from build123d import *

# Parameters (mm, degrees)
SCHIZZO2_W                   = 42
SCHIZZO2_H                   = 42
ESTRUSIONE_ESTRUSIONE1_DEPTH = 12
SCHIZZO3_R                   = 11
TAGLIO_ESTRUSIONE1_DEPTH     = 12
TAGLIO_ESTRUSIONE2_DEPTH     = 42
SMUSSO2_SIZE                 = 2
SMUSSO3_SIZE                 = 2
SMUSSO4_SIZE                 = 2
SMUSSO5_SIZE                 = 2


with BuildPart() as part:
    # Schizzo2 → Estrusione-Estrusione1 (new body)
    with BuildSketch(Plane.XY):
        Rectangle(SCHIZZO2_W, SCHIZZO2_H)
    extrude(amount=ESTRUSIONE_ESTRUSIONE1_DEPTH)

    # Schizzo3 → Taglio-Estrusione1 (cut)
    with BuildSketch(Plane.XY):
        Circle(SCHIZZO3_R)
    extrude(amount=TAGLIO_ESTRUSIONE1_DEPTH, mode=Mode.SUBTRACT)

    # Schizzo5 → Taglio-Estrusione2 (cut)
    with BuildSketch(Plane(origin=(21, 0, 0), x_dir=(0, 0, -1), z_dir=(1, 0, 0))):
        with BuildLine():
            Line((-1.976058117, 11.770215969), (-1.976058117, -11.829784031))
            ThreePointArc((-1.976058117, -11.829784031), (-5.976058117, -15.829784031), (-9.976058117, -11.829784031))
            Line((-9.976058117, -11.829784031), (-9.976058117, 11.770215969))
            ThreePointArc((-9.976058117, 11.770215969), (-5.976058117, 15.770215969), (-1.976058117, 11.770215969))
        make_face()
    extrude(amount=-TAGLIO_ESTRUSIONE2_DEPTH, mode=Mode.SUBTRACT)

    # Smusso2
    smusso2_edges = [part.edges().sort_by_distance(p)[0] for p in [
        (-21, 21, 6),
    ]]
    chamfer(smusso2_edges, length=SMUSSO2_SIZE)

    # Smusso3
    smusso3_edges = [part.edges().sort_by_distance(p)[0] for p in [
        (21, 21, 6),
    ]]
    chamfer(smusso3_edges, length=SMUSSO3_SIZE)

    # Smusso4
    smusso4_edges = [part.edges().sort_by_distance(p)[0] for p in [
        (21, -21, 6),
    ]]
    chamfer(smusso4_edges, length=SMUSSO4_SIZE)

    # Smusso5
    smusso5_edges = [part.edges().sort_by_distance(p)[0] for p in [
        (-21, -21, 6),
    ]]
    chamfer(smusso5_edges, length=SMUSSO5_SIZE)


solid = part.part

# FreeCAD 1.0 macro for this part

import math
import FreeCAD as App
import Part
import Sketcher
from FreeCAD import Vector


def edges_at(feature, points):
    """Names of the edges that pass closest to the given points."""
    edges = feature.Shape.Edges
    near = lambda p: min(range(len(edges)), key=lambda i: edges[i].distToShape(Part.Vertex(*p))[0])
    return sorted({f"Edge{near(p) + 1}" for p in points})


def add_polygon(sketch, points):
    """Adds a closed chain of lines whose ends are joined by coincident constraints."""
    first, n = sketch.GeometryCount, len(points)
    for a, b in zip(points, points[1:] + points[:1]):
        sketch.addGeometry(Part.LineSegment(App.Vector(*a, 0), App.Vector(*b, 0)), False)
    for i in range(n):
        sketch.addConstraint(Sketcher.Constraint("Coincident", first + i, 2, first + (i + 1) % n, 1))

doc = App.newDocument("Part")
body = doc.addObject("PartDesign::Body", "Body")

sketch1 = body.newObject("Sketcher::SketchObject", "Sketch")
sketch1.AttachmentSupport = (doc.getObject("XY_Plane"), [""])
sketch1.MapMode = "FlatFace"
add_polygon(sketch1, [(-21, 21), (-21, -21), (21, -21), (21, 21)])
sketch1.addConstraint(Sketcher.Constraint("Vertical", 0))
sketch1.addConstraint(Sketcher.Constraint("Horizontal", 1))
sketch1.addConstraint(Sketcher.Constraint("Vertical", 2))
sketch1.addConstraint(Sketcher.Constraint("Horizontal", 3))
sketch1.addConstraint(Sketcher.Constraint("Symmetric", 0, 2, 2, 2, -1, 1))
sketch1.addConstraint(Sketcher.Constraint("Equal", 3, 0))
sketch1.addConstraint(Sketcher.Constraint("DistanceX", 1, 1, 1, 2, 42.0))
pad1 = body.newObject("PartDesign::Pad", "Pad")
pad1.Profile = sketch1
pad1.Length = 12

sketch2 = body.newObject("Sketcher::SketchObject", "Sketch001")
sketch2.AttachmentSupport = (doc.getObject("XY_Plane"), [""])
sketch2.MapMode = "FlatFace"
sketch2.addGeometry(Part.Circle(Vector(0, 0, 0), Vector(0, 0, 1), 11), False)
sketch2.addConstraint(Sketcher.Constraint("Coincident", 0, 3, -1, 1))
sketch2.addConstraint(Sketcher.Constraint("Diameter", 0, 22.0))
pocket1 = body.newObject("PartDesign::Pocket", "Pocket")
pocket1.Profile = sketch2
pocket1.Length = 12
pocket1.Reversed = True

sketch3 = body.newObject("Sketcher::SketchObject", "Sketch002")
sketch3.AttachmentSupport = (doc.getObject("YZ_Plane"), [""])
sketch3.MapMode = "FlatFace"
sketch3.AttachmentOffset = App.Placement(Vector(0, 0, 21), App.Rotation())
sketch3.addGeometry(Part.LineSegment(Vector(-11.8, 2, 0), Vector(11.8, 2, 0)), False)
sketch3.addGeometry(Part.ArcOfCircle(Part.Circle(Vector(11.8, 6, 0), Vector(0, 0, 1), 4), math.radians(-90), math.radians(90)), False)
sketch3.addGeometry(Part.LineSegment(Vector(11.8, 10, 0), Vector(-11.8, 10, 0)), False)
sketch3.addGeometry(Part.ArcOfCircle(Part.Circle(Vector(-11.8, 6, 0), Vector(0, 0, 1), 4), math.radians(90), math.radians(270)), False)
sketch3.addConstraint(Sketcher.Constraint("Tangent", 0, 2, 1, 1))
sketch3.addConstraint(Sketcher.Constraint("Tangent", 1, 2, 2, 1))
sketch3.addConstraint(Sketcher.Constraint("Tangent", 2, 2, 3, 1))
sketch3.addConstraint(Sketcher.Constraint("Tangent", 3, 2, 0, 1))
sketch3.addConstraint(Sketcher.Constraint("Horizontal", 0))
sketch3.addConstraint(Sketcher.Constraint("Horizontal", 2))
sketch3.addConstraint(Sketcher.Constraint("Radius", 1, 4.0))
sketch3.addConstraint(Sketcher.Constraint("DistanceX", 0, 1, 0, 2, 23.6))
sketch3.addConstraint(Sketcher.Constraint("DistanceY", -1, 1, 1, 3, 5.976058))
sketch3.addConstraint(Sketcher.Constraint("DistanceX", -1, 1, 1, 3, 11.770216))
pocket2 = body.newObject("PartDesign::Pocket", "Pocket001")
pocket2.Profile = sketch3
pocket2.Length = 42
doc.recompute()

chamfer = body.newObject("PartDesign::Chamfer", "Chamfer")
chamfer.Base = (pocket2, edges_at(pocket2, [(-21, 21, 6)]))
chamfer.Size = 2
doc.recompute()

chamfer2 = body.newObject("PartDesign::Chamfer", "Chamfer001")
chamfer2.Base = (chamfer, edges_at(chamfer, [(21, 21, 6)]))
chamfer2.Size = 2
doc.recompute()

chamfer3 = body.newObject("PartDesign::Chamfer", "Chamfer002")
chamfer3.Base = (chamfer2, edges_at(chamfer2, [(21, -21, 6)]))
chamfer3.Size = 2
doc.recompute()

chamfer4 = body.newObject("PartDesign::Chamfer", "Chamfer003")
chamfer4.Base = (chamfer3, edges_at(chamfer3, [(-21, -21, 6)]))
chamfer4.Size = 2

doc.recompute()
